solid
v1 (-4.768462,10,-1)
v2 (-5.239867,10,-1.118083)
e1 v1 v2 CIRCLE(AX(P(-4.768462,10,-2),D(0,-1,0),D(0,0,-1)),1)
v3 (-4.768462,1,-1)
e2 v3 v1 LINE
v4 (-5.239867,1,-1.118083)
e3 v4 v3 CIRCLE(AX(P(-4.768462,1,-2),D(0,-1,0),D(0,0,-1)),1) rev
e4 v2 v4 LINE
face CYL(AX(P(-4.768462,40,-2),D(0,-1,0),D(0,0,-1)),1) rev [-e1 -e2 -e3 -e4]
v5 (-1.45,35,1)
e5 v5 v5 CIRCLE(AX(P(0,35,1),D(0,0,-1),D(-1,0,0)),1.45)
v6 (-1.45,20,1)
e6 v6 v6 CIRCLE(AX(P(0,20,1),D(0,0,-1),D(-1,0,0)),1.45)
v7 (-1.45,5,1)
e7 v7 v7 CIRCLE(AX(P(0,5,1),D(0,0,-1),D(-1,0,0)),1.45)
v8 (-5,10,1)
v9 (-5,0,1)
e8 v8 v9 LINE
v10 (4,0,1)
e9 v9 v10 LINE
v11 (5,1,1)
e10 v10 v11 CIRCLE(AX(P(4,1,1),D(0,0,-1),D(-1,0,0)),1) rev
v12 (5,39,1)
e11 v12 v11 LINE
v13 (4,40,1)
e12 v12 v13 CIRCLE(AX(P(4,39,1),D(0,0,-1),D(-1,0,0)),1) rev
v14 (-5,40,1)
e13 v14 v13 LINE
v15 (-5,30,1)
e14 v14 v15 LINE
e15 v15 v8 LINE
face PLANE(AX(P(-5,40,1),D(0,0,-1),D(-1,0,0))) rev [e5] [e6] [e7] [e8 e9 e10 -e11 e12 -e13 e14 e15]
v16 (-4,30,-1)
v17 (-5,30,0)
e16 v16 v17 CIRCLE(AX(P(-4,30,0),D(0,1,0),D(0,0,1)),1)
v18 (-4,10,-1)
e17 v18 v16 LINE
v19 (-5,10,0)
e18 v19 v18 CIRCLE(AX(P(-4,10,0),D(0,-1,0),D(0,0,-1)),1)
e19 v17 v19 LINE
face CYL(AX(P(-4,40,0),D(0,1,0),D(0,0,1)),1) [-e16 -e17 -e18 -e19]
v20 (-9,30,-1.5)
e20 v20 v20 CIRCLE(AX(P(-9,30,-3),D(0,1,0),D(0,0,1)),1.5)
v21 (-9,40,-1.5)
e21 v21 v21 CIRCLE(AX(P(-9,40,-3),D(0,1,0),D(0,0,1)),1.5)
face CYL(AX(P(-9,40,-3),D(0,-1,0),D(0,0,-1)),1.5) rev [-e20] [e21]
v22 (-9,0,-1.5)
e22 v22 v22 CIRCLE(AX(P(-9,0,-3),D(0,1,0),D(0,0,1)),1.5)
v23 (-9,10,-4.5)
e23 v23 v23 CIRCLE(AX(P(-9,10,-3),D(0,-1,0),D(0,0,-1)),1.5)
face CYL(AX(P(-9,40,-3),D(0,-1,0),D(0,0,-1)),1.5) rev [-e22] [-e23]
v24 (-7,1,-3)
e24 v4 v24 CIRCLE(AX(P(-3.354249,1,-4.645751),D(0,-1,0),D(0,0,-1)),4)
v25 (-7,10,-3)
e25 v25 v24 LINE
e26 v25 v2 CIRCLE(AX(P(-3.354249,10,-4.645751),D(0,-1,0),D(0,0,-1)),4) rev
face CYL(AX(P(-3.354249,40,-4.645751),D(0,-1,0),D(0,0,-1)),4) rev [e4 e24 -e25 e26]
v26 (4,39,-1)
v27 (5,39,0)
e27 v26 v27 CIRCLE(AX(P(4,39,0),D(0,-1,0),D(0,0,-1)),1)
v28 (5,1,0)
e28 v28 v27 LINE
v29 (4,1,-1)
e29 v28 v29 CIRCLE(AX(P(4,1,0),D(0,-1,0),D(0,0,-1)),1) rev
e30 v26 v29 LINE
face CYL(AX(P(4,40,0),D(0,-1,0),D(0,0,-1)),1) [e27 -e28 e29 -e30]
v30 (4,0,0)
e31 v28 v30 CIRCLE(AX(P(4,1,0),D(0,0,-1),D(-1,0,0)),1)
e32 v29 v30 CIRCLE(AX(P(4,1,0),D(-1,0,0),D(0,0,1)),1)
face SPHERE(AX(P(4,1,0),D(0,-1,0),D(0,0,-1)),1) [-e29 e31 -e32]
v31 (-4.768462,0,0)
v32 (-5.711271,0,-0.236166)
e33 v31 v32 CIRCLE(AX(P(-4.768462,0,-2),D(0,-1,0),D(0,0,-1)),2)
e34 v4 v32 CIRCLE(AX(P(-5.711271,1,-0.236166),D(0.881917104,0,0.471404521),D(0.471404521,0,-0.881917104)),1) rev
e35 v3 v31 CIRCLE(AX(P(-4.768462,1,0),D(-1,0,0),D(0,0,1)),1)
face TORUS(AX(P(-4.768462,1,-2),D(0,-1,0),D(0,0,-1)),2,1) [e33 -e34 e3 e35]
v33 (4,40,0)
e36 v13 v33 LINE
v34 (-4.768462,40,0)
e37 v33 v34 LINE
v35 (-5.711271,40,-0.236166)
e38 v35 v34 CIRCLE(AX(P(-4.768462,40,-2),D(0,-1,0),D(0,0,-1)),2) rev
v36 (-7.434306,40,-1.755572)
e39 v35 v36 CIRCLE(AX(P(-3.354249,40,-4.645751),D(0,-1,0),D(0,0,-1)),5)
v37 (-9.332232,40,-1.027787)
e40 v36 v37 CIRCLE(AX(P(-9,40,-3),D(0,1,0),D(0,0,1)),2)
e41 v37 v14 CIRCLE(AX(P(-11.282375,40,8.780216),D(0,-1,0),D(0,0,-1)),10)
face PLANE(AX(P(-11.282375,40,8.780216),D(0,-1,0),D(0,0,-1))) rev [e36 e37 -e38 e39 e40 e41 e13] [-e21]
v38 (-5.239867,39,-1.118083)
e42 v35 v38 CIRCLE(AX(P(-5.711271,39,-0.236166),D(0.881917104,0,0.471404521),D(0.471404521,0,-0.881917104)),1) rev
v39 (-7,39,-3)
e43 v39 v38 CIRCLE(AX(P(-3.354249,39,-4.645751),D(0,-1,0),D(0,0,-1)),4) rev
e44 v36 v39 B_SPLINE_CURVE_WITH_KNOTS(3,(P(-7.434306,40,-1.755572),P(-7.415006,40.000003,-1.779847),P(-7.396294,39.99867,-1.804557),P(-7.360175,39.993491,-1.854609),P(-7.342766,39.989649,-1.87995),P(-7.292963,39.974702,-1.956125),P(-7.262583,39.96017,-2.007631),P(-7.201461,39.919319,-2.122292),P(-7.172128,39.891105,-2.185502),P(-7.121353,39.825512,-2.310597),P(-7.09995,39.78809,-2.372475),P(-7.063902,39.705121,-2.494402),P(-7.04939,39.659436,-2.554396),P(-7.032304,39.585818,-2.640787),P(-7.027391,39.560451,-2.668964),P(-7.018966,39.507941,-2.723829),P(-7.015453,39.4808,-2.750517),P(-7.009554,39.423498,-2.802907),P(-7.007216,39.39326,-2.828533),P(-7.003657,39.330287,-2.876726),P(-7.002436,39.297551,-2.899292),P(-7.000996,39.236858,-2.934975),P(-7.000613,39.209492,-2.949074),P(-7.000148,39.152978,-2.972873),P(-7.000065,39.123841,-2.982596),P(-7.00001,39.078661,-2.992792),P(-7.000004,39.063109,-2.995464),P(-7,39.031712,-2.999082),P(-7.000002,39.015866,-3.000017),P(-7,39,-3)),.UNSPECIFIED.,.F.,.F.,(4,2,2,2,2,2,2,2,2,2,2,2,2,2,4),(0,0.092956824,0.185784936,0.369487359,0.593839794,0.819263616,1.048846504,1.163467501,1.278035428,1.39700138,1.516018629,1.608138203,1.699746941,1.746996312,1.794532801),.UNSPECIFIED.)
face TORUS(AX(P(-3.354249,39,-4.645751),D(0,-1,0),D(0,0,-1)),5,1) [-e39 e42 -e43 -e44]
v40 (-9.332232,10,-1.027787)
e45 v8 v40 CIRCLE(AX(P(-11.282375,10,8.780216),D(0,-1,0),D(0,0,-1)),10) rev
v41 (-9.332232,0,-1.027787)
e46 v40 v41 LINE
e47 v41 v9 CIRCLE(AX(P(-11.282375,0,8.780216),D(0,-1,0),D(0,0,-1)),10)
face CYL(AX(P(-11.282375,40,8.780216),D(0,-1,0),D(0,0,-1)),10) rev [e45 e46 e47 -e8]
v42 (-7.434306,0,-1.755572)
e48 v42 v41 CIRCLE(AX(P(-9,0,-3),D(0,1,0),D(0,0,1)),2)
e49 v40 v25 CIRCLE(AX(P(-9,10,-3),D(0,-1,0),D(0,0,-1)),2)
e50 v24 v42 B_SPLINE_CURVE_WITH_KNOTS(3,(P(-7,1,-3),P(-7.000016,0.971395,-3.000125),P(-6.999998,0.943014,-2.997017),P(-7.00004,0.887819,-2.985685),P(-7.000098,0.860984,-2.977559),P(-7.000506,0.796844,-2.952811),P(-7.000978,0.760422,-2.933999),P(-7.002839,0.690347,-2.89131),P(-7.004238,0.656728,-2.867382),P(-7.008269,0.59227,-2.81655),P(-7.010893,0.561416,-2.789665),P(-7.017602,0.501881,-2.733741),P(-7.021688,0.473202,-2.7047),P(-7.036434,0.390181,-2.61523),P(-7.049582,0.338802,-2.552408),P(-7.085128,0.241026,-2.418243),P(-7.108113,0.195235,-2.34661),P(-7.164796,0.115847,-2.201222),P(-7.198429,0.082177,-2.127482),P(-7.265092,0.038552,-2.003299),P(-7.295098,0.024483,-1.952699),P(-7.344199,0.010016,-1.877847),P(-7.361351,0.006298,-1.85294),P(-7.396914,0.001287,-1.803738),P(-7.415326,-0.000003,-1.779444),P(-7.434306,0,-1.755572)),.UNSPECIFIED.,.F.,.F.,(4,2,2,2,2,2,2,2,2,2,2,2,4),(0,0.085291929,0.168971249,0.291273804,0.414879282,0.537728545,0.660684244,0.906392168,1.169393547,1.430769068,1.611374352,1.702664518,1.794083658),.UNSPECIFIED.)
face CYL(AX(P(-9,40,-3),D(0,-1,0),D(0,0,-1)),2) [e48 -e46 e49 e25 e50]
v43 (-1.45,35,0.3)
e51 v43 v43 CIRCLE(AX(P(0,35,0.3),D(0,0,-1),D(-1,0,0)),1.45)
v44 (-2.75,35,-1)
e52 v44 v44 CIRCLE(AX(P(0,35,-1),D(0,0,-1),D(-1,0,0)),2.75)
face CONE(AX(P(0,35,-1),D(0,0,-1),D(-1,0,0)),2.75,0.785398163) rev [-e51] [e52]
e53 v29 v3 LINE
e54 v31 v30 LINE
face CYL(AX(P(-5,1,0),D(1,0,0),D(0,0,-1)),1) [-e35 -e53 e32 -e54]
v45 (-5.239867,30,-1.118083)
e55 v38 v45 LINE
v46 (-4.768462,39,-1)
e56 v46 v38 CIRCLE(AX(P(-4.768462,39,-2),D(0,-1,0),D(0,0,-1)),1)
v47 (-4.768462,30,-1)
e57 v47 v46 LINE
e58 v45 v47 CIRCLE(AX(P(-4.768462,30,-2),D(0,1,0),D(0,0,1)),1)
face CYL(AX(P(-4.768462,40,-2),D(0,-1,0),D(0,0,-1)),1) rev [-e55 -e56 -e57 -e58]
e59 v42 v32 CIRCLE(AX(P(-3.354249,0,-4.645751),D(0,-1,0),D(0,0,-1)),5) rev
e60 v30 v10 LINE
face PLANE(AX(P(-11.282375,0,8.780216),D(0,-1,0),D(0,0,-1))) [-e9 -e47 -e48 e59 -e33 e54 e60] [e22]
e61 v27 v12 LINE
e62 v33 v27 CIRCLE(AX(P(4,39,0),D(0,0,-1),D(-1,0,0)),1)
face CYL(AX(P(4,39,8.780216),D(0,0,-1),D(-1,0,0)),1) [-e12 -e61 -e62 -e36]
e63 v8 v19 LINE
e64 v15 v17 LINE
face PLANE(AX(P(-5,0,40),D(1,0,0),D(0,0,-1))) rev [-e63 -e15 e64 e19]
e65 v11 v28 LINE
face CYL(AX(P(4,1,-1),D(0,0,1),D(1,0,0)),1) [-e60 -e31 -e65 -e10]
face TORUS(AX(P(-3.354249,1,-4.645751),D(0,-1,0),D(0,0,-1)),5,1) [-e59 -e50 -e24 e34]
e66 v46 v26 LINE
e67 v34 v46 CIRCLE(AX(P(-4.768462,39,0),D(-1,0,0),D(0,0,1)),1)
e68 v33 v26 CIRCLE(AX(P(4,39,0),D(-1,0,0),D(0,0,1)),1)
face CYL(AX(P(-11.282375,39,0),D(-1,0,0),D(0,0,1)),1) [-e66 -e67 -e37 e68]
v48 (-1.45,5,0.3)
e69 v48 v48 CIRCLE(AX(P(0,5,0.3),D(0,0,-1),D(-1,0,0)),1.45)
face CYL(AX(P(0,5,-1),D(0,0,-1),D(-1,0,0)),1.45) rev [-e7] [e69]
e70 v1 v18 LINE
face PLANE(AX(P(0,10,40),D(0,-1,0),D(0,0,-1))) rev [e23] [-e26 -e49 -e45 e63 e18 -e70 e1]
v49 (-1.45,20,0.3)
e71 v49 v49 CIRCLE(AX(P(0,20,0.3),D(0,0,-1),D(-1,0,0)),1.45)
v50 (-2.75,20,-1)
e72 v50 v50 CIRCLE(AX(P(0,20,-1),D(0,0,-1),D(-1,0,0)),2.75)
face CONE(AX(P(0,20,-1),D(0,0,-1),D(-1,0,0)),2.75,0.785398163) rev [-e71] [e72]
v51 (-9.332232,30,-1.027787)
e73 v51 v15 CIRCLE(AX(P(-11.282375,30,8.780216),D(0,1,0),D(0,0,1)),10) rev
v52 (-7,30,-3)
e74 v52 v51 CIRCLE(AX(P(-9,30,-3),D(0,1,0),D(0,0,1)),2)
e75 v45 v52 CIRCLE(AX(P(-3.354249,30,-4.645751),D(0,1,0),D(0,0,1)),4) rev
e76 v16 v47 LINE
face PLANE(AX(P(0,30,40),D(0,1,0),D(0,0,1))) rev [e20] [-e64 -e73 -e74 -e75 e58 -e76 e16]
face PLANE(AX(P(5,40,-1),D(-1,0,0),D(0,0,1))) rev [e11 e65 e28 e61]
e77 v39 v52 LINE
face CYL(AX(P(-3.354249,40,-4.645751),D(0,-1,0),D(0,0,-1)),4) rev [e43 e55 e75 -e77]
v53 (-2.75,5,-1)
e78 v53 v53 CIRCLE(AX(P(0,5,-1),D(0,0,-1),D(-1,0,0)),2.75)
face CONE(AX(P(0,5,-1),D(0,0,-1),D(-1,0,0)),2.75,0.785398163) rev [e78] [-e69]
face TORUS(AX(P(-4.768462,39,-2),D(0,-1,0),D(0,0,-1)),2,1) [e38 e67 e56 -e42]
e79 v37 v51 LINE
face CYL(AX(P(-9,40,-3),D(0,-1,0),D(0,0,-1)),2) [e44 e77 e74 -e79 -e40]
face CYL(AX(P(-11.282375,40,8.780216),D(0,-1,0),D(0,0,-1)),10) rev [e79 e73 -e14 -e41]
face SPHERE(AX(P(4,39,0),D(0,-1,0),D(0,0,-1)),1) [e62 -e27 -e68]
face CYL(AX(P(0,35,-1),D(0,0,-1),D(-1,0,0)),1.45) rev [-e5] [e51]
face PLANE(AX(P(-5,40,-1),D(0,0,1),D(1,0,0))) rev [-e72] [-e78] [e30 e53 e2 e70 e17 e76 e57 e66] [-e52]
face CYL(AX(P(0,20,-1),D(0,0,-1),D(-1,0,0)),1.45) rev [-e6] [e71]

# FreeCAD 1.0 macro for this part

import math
import FreeCAD as App
import Part
import Sketcher

V = App.Vector
Q = App.Units.Quantity


def edges_at(feature, points):
    """Names of the edges that pass closest to the given points."""
    edges = feature.Shape.Edges
    near = lambda p: min(range(len(edges)), key=lambda i: edges[i].distToShape(Part.Vertex(*p))[0])
    return sorted({f"Edge{near(p) + 1}" for p in points})


def add_polygon(sketch, points):
    """Adds a closed chain of lines whose ends are joined by coincident constraints."""
    first, n = sketch.GeometryCount, len(points)
    for a, b in zip(points, points[1:] + points[:1]):
        sketch.addGeometry(Part.LineSegment(App.Vector(*a, 0), App.Vector(*b, 0)), False)
    for i in range(n):
        sketch.addConstraint(Sketcher.Constraint("Coincident", first + i, 2, first + (i + 1) % n, 1))

doc = App.newDocument("Part")
body = doc.addObject("PartDesign::Body", "Body")

# Sketch on XZ plane
sketch1 = body.newObject("Sketcher::SketchObject", "Sketch")
sketch1.AttachmentSupport = (doc.getObject("XZ_Plane"), [""])
sketch1.MapMode = "FlatFace"
sketch1.addGeometry([
    Part.LineSegment(V(5, -1, 0), V(-5, -1, 0)),  # 0
    Part.ArcOfCircle(Part.Circle(V(-3.4, -4.6, 0), V(0, 0, 1), 4), math.radians(114), math.radians(156)),  # 1
    Part.ArcOfCircle(Part.Circle(V(-9, -3, 0), V(0, 0, 1), 2), math.radians(100), math.radians(360)),  # 2
    Part.ArcOfCircle(Part.Circle(V(-11.3, 8.8, 0), V(0, 0, 1), 10), math.radians(-79), math.radians(-51)),  # 3
    Part.LineSegment(V(-5, 1, 0), V(5, 1, 0)),  # 4
    Part.LineSegment(V(5, 1, 0), V(5, -1, 0)),  # 5
    Part.Circle(V(-9, -3, 0), V(0, 0, 1), 1.5),  # 6
], False)
sketch1.addConstraint([
    Sketcher.Constraint("Coincident", 0, 2, 1, 1),
    Sketcher.Constraint("Coincident", 1, 2, 2, 2),
    Sketcher.Constraint("Coincident", 2, 1, 3, 1),
    Sketcher.Constraint("Coincident", 3, 2, 4, 1),
    Sketcher.Constraint("Coincident", 4, 2, 5, 1),
    Sketcher.Constraint("Coincident", 5, 2, 0, 1),
    Sketcher.Constraint("Horizontal", 0),
    Sketcher.Constraint("Horizontal", 4),
    Sketcher.Constraint("Vertical", 5),
    Sketcher.Constraint("Coincident", 6, 3, 2, 3),
    Sketcher.Constraint("Symmetric", 0, 2, 4, 2, -1, 1),
    Sketcher.Constraint("Horizontal", 6, 3, 1, 2),
    Sketcher.Constraint("Vertical", 0, 2, 3, 2),
    Sketcher.Constraint("Diameter", 6, 3.0),
    Sketcher.Constraint("Radius", 1, 4.0),
    Sketcher.Constraint("Radius", 2, 2.0),
    Sketcher.Constraint("Radius", 3, 10.0),
    Sketcher.Constraint("DistanceX", 0, 2, 0, 1, 10.0),
    Sketcher.Constraint("DistanceY", 5, 2, 5, 1, 2.0),
    Sketcher.Constraint("DistanceX", 2, 3, -1, 1, 9.0),
    Sketcher.Constraint("DistanceY", 2, 3, -1, 1, 3.0),
    Sketcher.Constraint("DistanceX", 2, 1, -1, 1, 9.332232),
])
pad1 = body.newObject("PartDesign::Pad", "Pad")
pad1.Profile = sketch1
pad1.Length = 40
pad1.Reversed = True

# Sketch on XY plane
sketch2 = body.newObject("Sketcher::SketchObject", "Sketch001")
sketch2.AttachmentSupport = (doc.getObject("XY_Plane"), [""])
sketch2.MapMode = "FlatFace"
add_polygon(sketch2, [(-11, 30), (-11, 10), (-5, 10), (-5, 30)])  # lines 0-3
sketch2.addConstraint([
    Sketcher.Constraint("Vertical", 0),
    Sketcher.Constraint("Horizontal", 1),
    Sketcher.Constraint("Vertical", 2),
    Sketcher.Constraint("Horizontal", 3),
    Sketcher.Constraint("DistanceX", 1, 1, 1, 2, 6.0),
    Sketcher.Constraint("DistanceY", 0, 2, 0, 1, 20.0),
    Sketcher.Constraint("DistanceX", 0, 2, -1, 1, 11.0),
    Sketcher.Constraint("DistanceY", -1, 1, 0, 2, 10.0),
])
pocket1 = body.newObject("PartDesign::Pocket", "Pocket")
pocket1.Profile = sketch2
pocket1.Type = "ThroughAll"
pocket1.Midplane = True
doc.recompute()

fillet = body.newObject("PartDesign::Fillet", "Fillet")
fillet.Base = (pocket1, edges_at(pocket1, [(5, 20, -1), (-5, 20, -1)]))
fillet.Radius = 1
doc.recompute()

fillet2 = body.newObject("PartDesign::Fillet", "Fillet001")
fillet2.Base = (fillet, edges_at(fillet, [
    (-6.183, 40, -1.817),
    (-5, 35, -1),
    (-5, 5, -1),
    (5, 40, 0.5),
    (-0.5, 0, -1),
    (-0.5, 40, -1),
    (4.707, 0, -0.707),
    (4.707, 40, -0.707),
    (-6.183, 0, -1.817),
    (5, 0, 0.5),
]))
fillet2.Radius = 1

# Sketch on YZ plane
sketch3 = body.newObject("Sketcher::SketchObject", "Sketch002")
sketch3.AttachmentSupport = (doc.getObject("YZ_Plane"), [""])
sketch3.MapMode = "FlatFace"
add_polygon(sketch3, [(35, 1), (35, -1), (37.8, -1), (36.5, 0.3), (36.5, 1)])  # lines 0-4
sketch3.addGeometry(Part.LineSegment(V(35, -1, 0), V(35, 1, 0)), True)  # axis
sketch3.addConstraint([
    Sketcher.Constraint("Vertical", 0),
    Sketcher.Constraint("Horizontal", 1),
    Sketcher.Constraint("Vertical", 3),
    Sketcher.Constraint("Horizontal", 4),
    Sketcher.Constraint("Vertical", 5),
    Sketcher.Constraint("Coincident", 5, 1, 0, 2),
    Sketcher.Constraint("Horizontal", 3, 2, 5, 2),
    Sketcher.Constraint("DistanceY", 0, 2, 0, 1, 2.0),
    Sketcher.Constraint("Angle", 2, Q("135 deg")),
    Sketcher.Constraint("DistanceY", 3, 1, 3, 2, 0.7),
    Sketcher.Constraint("DistanceX", -1, 1, 0, 2, 35.0),
    Sketcher.Constraint("DistanceY", 0, 2, -1, 1, 1.0),
    Sketcher.Constraint("DistanceX", 1, 1, 1, 2, 2.75),
])
groove = body.newObject("PartDesign::Groove", "Groove")
groove.Profile = sketch3
groove.ReferenceAxis = (sketch3, ["Axis0"])
groove.Angle = 360
doc.recompute()

linearpattern = body.newObject("PartDesign::LinearPattern", "LinearPattern")
linearpattern.Originals = [groove]
linearpattern.Direction = (doc.getObject("Y_Axis"), [""])
linearpattern.Mode = "offset"
linearpattern.Offset = 15
linearpattern.Occurrences = 2
linearpattern.Reversed = True
body.Tip = linearpattern
doc.recompute()

linearpattern2 = body.newObject("PartDesign::LinearPattern", "LinearPattern001")
linearpattern2.Originals = [groove]
linearpattern2.Direction = (doc.getObject("Y_Axis"), [""])
linearpattern2.Mode = "offset"
linearpattern2.Offset = 30
linearpattern2.Occurrences = 2
linearpattern2.Reversed = True
body.Tip = linearpattern2

doc.recompute()
